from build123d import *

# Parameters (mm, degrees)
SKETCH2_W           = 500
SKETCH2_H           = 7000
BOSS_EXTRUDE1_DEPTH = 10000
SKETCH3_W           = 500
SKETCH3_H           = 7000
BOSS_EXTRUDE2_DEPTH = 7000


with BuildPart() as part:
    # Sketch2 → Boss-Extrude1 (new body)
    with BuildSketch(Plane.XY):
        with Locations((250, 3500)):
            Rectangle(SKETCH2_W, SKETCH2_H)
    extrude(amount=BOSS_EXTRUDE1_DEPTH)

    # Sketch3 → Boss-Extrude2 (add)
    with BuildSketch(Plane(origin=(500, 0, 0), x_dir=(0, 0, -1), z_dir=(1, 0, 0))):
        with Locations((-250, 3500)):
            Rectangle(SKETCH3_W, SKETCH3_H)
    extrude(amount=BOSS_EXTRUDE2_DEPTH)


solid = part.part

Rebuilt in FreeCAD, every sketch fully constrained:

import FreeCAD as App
import Part
import Sketcher

V = App.Vector
Q = App.Units.Quantity


def add_polygon(sketch, points):
    """Adds a closed chain of lines whose ends are joined by coincident constraints."""
    first, n = sketch.GeometryCount, len(points)
    for a, b in zip(points, points[1:] + points[:1]):
        sketch.addGeometry(Part.LineSegment(App.Vector(*a, 0), App.Vector(*b, 0)), False)
    for i in range(n):
        sketch.addConstraint(Sketcher.Constraint("Coincident", first + i, 2, first + (i + 1) % n, 1))

doc = App.newDocument("Part")
body = doc.addObject("PartDesign::Body", "Body")

sketch1 = body.newObject("Sketcher::SketchObject", "Sketch")
sketch1.AttachmentSupport = (doc.getObject("XY_Plane"), [""])
sketch1.MapMode = "FlatFace"
add_polygon(sketch1, [(0, 7000), (0, 0), (500, 0), (500, 7000)])
sketch1.addConstraint(Sketcher.Constraint("Vertical", 0))
sketch1.addConstraint(Sketcher.Constraint("Horizontal", 1))
sketch1.addConstraint(Sketcher.Constraint("Vertical", 2))
sketch1.addConstraint(Sketcher.Constraint("Horizontal", 3))
sketch1.addConstraint(Sketcher.Constraint("Coincident", 0, 2, -1, 1))
sketch1.addConstraint(Sketcher.Constraint("DistanceX", 1, 1, 1, 2, Q("500 mm")))
sketch1.addConstraint(Sketcher.Constraint("DistanceY", 0, 2, 0, 1, Q("7000 mm")))
pad1 = body.newObject("PartDesign::Pad", "Pad")
pad1.Profile = sketch1
pad1.Length = 10000

sketch2 = body.newObject("Sketcher::SketchObject", "Sketch001")
sketch2.AttachmentSupport = (doc.getObject("YZ_Plane"), [""])
sketch2.MapMode = "FlatFace"
sketch2.AttachmentOffset = App.Placement(V(0, 0, 500), App.Rotation())
add_polygon(sketch2, [(7000, 500), (0, 500), (0, 0), (7000, 0)])
sketch2.addConstraint(Sketcher.Constraint("Horizontal", 0))
sketch2.addConstraint(Sketcher.Constraint("Vertical", 1))
sketch2.addConstraint(Sketcher.Constraint("Horizontal", 2))
sketch2.addConstraint(Sketcher.Constraint("Vertical", 3))
sketch2.addConstraint(Sketcher.Constraint("Coincident", 1, 2, -1, 1))
sketch2.addConstraint(Sketcher.Constraint("DistanceX", 0, 2, 0, 1, Q("7000 mm")))
sketch2.addConstraint(Sketcher.Constraint("DistanceY", 1, 2, 1, 1, Q("500 mm")))
pad2 = body.newObject("PartDesign::Pad", "Pad001")
pad2.Profile = sketch2
pad2.Length = 7000

doc.recompute()
